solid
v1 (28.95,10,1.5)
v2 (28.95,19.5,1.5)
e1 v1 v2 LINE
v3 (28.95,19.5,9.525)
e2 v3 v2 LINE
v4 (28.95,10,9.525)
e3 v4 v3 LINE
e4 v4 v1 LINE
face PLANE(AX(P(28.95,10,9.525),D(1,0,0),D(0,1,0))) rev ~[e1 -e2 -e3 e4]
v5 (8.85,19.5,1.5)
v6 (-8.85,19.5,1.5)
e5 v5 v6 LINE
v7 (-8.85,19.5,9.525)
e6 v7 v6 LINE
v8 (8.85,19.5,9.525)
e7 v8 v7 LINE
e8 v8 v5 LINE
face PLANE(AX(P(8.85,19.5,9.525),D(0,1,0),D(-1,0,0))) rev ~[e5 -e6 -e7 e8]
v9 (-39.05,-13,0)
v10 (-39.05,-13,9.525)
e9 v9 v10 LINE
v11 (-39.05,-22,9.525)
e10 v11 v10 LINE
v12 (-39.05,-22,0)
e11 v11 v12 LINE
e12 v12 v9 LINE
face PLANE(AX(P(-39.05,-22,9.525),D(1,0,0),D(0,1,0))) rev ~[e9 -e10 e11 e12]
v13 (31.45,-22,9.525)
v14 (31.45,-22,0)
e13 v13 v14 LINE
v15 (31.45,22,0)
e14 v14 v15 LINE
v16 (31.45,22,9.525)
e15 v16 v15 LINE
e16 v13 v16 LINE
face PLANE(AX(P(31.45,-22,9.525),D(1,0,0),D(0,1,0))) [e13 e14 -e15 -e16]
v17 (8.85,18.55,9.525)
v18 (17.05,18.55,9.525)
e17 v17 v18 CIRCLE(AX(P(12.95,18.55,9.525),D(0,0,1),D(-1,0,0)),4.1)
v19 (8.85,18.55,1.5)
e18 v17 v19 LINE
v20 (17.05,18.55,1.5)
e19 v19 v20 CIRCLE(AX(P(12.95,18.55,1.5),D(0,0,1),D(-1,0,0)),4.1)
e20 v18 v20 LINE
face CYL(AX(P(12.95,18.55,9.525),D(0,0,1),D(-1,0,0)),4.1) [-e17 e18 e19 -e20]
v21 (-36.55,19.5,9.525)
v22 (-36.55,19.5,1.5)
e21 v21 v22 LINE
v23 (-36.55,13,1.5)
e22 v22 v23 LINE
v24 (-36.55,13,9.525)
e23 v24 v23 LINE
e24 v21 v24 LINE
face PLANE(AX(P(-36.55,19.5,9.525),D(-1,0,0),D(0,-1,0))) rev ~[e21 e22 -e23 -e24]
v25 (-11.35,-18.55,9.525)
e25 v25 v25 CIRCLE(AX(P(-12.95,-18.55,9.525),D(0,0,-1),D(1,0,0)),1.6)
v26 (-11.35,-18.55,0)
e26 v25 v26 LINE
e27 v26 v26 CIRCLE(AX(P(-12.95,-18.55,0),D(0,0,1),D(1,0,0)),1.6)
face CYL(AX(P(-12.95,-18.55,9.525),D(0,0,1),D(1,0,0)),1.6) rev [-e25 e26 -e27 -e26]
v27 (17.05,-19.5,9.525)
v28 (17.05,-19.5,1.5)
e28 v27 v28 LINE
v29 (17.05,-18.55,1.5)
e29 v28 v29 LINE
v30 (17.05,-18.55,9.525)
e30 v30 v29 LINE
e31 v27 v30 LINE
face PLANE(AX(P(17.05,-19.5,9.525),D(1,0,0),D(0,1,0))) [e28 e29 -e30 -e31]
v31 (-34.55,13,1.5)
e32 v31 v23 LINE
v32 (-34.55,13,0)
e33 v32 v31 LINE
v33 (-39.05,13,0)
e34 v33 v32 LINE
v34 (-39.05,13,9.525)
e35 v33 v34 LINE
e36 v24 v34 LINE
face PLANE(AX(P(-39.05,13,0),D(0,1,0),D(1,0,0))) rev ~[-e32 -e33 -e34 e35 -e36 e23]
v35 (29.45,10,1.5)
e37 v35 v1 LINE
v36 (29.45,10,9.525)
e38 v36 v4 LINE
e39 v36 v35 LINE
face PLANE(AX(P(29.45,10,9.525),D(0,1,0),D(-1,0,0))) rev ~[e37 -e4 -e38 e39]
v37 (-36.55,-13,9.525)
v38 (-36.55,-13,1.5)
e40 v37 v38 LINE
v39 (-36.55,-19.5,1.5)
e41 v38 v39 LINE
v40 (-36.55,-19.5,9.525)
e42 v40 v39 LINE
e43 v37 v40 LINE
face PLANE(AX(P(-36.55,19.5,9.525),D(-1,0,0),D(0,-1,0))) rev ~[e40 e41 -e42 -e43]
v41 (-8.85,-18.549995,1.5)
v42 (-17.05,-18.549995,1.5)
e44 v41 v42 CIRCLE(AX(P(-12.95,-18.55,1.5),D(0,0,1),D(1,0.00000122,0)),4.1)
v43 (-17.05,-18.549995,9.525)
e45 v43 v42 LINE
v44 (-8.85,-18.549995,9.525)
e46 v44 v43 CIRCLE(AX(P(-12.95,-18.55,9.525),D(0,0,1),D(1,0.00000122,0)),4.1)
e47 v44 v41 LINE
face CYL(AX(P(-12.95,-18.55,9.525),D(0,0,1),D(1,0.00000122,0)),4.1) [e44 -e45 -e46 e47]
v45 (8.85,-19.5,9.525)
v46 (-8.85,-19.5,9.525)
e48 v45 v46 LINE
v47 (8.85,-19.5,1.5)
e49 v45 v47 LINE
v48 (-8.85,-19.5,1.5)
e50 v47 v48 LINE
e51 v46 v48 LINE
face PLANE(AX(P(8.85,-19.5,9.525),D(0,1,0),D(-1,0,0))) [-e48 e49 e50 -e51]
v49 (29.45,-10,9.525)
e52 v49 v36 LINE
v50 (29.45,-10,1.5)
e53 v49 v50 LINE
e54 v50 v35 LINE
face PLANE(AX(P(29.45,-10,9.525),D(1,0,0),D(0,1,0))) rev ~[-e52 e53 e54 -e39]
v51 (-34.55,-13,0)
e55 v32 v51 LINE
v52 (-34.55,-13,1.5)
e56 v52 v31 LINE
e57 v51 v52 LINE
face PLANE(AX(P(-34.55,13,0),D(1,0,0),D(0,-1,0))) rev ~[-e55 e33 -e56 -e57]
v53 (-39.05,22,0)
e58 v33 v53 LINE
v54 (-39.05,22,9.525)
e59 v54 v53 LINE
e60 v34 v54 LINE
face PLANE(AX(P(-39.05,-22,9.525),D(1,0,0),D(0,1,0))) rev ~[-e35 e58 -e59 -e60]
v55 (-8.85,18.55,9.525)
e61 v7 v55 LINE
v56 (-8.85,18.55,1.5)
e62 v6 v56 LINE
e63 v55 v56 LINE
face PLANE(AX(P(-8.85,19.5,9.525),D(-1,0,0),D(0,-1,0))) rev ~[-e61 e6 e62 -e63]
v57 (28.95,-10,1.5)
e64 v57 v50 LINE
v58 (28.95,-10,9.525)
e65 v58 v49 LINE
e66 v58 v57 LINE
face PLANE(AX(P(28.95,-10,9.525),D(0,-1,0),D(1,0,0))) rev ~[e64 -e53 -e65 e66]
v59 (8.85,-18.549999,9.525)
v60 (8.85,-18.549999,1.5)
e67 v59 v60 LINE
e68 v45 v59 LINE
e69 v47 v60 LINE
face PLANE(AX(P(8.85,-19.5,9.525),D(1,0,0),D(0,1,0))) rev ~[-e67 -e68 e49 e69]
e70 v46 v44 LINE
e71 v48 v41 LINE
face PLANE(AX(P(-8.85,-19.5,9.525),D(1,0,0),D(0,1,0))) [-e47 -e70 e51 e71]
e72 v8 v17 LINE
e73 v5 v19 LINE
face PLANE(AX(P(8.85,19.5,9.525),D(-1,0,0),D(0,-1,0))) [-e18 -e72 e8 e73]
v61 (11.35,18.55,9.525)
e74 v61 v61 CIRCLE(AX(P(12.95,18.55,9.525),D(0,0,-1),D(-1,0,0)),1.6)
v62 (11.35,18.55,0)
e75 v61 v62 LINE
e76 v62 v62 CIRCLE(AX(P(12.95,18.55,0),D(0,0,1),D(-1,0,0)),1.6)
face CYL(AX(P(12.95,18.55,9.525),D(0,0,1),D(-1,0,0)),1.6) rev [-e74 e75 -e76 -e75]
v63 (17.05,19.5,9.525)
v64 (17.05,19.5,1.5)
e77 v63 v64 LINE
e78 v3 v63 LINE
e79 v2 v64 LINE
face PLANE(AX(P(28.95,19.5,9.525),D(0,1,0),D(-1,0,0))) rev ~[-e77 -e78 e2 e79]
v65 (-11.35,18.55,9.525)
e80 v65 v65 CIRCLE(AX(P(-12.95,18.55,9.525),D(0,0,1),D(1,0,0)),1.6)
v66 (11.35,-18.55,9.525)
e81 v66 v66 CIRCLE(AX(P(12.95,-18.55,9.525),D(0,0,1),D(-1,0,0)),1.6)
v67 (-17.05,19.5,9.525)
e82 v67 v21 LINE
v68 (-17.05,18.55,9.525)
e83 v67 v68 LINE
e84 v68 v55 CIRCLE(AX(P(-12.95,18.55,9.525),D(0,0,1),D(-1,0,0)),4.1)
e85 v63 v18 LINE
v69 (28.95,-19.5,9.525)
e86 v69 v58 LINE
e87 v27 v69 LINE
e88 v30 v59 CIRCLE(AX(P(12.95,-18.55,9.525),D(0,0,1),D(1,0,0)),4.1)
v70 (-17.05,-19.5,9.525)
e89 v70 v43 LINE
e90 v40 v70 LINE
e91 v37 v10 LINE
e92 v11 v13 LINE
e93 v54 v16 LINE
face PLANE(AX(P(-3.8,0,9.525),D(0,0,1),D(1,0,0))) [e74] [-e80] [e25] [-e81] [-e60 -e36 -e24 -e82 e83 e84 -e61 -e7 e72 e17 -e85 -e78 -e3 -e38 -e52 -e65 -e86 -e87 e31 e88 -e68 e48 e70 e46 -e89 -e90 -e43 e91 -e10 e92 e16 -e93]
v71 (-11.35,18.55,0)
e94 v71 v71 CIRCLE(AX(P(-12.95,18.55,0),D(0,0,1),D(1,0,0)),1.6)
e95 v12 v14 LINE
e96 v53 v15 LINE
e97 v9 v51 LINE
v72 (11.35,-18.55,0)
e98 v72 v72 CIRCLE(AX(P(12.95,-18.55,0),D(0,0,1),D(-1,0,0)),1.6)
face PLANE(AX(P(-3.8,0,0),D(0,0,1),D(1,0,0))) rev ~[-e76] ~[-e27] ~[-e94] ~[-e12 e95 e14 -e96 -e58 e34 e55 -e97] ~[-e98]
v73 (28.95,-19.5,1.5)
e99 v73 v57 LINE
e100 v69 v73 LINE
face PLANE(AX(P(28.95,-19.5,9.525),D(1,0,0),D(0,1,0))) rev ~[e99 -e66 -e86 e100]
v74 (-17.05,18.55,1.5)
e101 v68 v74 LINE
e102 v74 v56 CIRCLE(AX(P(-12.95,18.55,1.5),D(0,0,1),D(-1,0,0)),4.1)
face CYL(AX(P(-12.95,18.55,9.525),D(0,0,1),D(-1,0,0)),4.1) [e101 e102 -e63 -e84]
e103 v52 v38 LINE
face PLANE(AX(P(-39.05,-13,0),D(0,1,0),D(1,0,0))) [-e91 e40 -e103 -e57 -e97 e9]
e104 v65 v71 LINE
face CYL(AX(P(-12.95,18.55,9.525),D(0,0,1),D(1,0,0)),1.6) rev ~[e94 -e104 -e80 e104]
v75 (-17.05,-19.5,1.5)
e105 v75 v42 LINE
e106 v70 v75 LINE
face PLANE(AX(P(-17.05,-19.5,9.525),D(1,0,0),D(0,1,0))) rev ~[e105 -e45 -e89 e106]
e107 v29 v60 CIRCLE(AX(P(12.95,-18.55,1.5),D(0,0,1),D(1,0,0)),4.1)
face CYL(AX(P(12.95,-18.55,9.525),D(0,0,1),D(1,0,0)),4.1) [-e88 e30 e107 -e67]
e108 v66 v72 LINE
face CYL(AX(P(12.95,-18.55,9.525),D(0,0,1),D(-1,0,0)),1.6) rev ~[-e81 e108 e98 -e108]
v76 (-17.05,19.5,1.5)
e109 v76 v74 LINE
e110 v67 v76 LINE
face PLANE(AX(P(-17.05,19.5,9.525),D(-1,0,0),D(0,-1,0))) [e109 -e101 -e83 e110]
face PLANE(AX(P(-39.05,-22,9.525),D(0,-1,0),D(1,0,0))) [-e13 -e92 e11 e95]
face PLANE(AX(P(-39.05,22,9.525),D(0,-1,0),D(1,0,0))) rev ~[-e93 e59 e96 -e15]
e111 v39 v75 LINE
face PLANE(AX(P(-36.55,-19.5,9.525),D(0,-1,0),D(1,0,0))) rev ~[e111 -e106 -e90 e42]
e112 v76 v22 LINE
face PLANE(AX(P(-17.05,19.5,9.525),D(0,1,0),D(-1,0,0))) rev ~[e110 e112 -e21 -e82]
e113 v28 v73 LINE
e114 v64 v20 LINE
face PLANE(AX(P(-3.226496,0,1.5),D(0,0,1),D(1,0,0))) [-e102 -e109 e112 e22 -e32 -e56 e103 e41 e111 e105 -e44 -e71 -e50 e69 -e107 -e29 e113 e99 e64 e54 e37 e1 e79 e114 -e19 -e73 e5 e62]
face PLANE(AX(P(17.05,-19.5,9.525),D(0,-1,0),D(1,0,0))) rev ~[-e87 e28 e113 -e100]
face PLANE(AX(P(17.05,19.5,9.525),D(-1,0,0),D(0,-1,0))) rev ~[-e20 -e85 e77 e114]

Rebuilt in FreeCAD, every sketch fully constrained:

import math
import FreeCAD as App
import Part
import Sketcher
from FreeCAD import Vector
Q = App.Units.Quantity

doc = App.newDocument("Part")
body = doc.addObject("PartDesign::Body", "Body")

sketch1 = body.newObject("Sketcher::SketchObject", "Sketch")
sketch1.AttachmentSupport = (doc.getObject("XY_Plane"), [""])
sketch1.MapMode = "FlatFace"
sketch1.addGeometry([
    Part.LineSegment(Vector(-39, 22, 0), Vector(-39, -22, 0)),
    Part.LineSegment(Vector(-39, -22, 0), Vector(31, -22, 0)),
    Part.LineSegment(Vector(31, -22, 0), Vector(31, 22, 0)),
    Part.LineSegment(Vector(31, 22, 0), Vector(-39, 22, 0)),
], False)
sketch1.addConstraint([
    Sketcher.Constraint("Coincident", 0, 2, 1, 1),
    Sketcher.Constraint("Coincident", 1, 2, 2, 1),
    Sketcher.Constraint("Coincident", 2, 2, 3, 1),
    Sketcher.Constraint("Coincident", 3, 2, 0, 1),
    Sketcher.Constraint("Vertical", 0),
    Sketcher.Constraint("Horizontal", 1),
    Sketcher.Constraint("Vertical", 2),
    Sketcher.Constraint("Horizontal", 3),
    Sketcher.Constraint("DistanceY", 0, 2, 0, 1, Q("44 mm")),
    Sketcher.Constraint("DistanceX", 1, 1, 1, 2, Q("70.5 mm")),
    Sketcher.Constraint("DistanceY", 0, 2, -1, 1, Q("22 mm")),
    Sketcher.Constraint("DistanceX", 0, 2, -1, 1, Q("39.05 mm")),
])
pad1 = body.newObject("PartDesign::Pad", "Pad")
pad1.Profile = sketch1
pad1.Length = 9.525
pad1.Reversed = True

sketch2 = body.newObject("Sketcher::SketchObject", "Sketch001")
sketch2.AttachmentSupport = (doc.getObject("XY_Plane"), [""])
sketch2.MapMode = "FlatFace"
sketch2.addGeometry(Part.Circle(Vector(-12.9, 18.6, 0), Vector(0, 0, 1), 1.6), False)
sketch2.addConstraint([
    Sketcher.Constraint("Diameter", 0, Q("3.2 mm")),
    Sketcher.Constraint("DistanceX", 0, 3, -1, 1, Q("12.95 mm")),
    Sketcher.Constraint("DistanceY", -1, 1, 0, 3, Q("18.55 mm")),
])
pocket1 = body.newObject("PartDesign::Pocket", "Pocket")
pocket1.Profile = sketch2
pocket1.Type = "ThroughAll"

sketch3 = body.newObject("Sketcher::SketchObject", "Sketch002")
sketch3.AttachmentSupport = (doc.getObject("XY_Plane"), [""])
sketch3.MapMode = "FlatFace"
sketch3.addGeometry(Part.Circle(Vector(12.9, 18.6, 0), Vector(0, 0, 1), 1.6), False)
sketch3.addConstraint([
    Sketcher.Constraint("Diameter", 0, Q("3.2 mm")),
    Sketcher.Constraint("DistanceX", -1, 1, 0, 3, Q("12.95 mm")),
    Sketcher.Constraint("DistanceY", -1, 1, 0, 3, Q("18.55 mm")),
])
pocket2 = body.newObject("PartDesign::Pocket", "Pocket001")
pocket2.Profile = sketch3
pocket2.Type = "ThroughAll"
doc.recompute()

mirrored = body.newObject("PartDesign::Mirrored", "Mirrored")
mirrored.Originals = [pocket1, pocket2]
mirrored.MirrorPlane = (doc.getObject("XZ_Plane"), [""])
body.Tip = mirrored

sketch4 = body.newObject("Sketcher::SketchObject", "Sketch003")
sketch4.AttachmentSupport = (doc.getObject("XY_Plane"), [""])
sketch4.MapMode = "FlatFace"
sketch4.addGeometry([
    Part.LineSegment(Vector(29.4, -10, 0), Vector(29.4, 10, 0)),
    Part.LineSegment(Vector(29.4, 10, 0), Vector(28.9, 10, 0)),
    Part.LineSegment(Vector(28.9, 10, 0), Vector(28.9, 19.5, 0)),
    Part.LineSegment(Vector(28.9, 19.5, 0), Vector(17.1, 19.5, 0)),
    Part.LineSegment(Vector(17.1, 19.5, 0), Vector(17.1, 18.6, 0)),
    Part.ArcOfCircle(Part.Circle(Vector(12.9, 18.6, 0), Vector(0, 0, 1), 4.1), math.radians(180), math.radians(360)),
    Part.LineSegment(Vector(8.8, 18.6, 0), Vector(8.8, 19.5, 0)),
    Part.LineSegment(Vector(8.8, 19.5, 0), Vector(-8.8, 19.5, 0)),
    Part.LineSegment(Vector(-8.8, 19.5, 0), Vector(-8.8, 18.6, 0)),
    Part.ArcOfCircle(Part.Circle(Vector(-12.9, 18.6, 0), Vector(0, 0, 1), 4.1), math.radians(180), math.radians(360)),
    Part.LineSegment(Vector(-17.1, 18.6, 0), Vector(-17.1, 19.5, 0)),
    Part.LineSegment(Vector(-17.1, 19.5, 0), Vector(-36.5, 19.5, 0)),
    Part.LineSegment(Vector(-36.5, 19.5, 0), Vector(-36.5, -19.5, 0)),
    Part.LineSegment(Vector(-36.5, -19.5, 0), Vector(-17.1, -19.5, 0)),
    Part.LineSegment(Vector(-17.1, -19.5, 0), Vector(-17.1, -18.5, 0)),
    Part.ArcOfCircle(Part.Circle(Vector(-12.9, -18.6, 0), Vector(0, 0, 1), 4.1), math.radians(0), math.radians(180)),
    Part.LineSegment(Vector(-8.8, -18.5, 0), Vector(-8.8, -19.5, 0)),
    Part.LineSegment(Vector(-8.8, -19.5, 0), Vector(8.8, -19.5, 0)),
    Part.LineSegment(Vector(8.8, -19.5, 0), Vector(8.8, -18.5, 0)),
    Part.ArcOfCircle(Part.Circle(Vector(12.9, -18.6, 0), Vector(0, 0, 1), 4.1), math.radians(0), math.radians(180)),
    Part.LineSegment(Vector(17.1, -18.6, 0), Vector(17.1, -19.5, 0)),
    Part.LineSegment(Vector(17.1, -19.5, 0), Vector(28.9, -19.5, 0)),
    Part.LineSegment(Vector(28.9, -19.5, 0), Vector(28.9, -10, 0)),
    Part.LineSegment(Vector(28.9, -10, 0), Vector(29.4, -10, 0)),
], False)
sketch4.addConstraint([
    Sketcher.Constraint("Coincident", 0, 2, 1, 1),
    Sketcher.Constraint("Coincident", 1, 2, 2, 1),
    Sketcher.Constraint("Coincident", 2, 2, 3, 1),
    Sketcher.Constraint("Coincident", 3, 2, 4, 1),
    Sketcher.Constraint("Tangent", 4, 2, 5, 2),
    Sketcher.Constraint("Tangent", 5, 1, 6, 1),
    Sketcher.Constraint("Coincident", 6, 2, 7, 1),
    Sketcher.Constraint("Coincident", 7, 2, 8, 1),
    Sketcher.Constraint("Tangent", 8, 2, 9, 2),
    Sketcher.Constraint("Tangent", 9, 1, 10, 1),
    Sketcher.Constraint("Coincident", 10, 2, 11, 1),
    Sketcher.Constraint("Coincident", 11, 2, 12, 1),
    Sketcher.Constraint("Coincident", 12, 2, 13, 1),
    Sketcher.Constraint("Coincident", 13, 2, 14, 1),
    Sketcher.Constraint("Tangent", 14, 2, 15, 2),
    Sketcher.Constraint("Tangent", 15, 1, 16, 1),
    Sketcher.Constraint("Coincident", 16, 2, 17, 1),
    Sketcher.Constraint("Coincident", 17, 2, 18, 1),
    Sketcher.Constraint("Tangent", 18, 2, 19, 2),
    Sketcher.Constraint("Tangent", 19, 1, 20, 1),
    Sketcher.Constraint("Coincident", 20, 2, 21, 1),
    Sketcher.Constraint("Coincident", 21, 2, 22, 1),
    Sketcher.Constraint("Coincident", 22, 2, 23, 1),
    Sketcher.Constraint("Coincident", 23, 2, 0, 1),
    Sketcher.Constraint("Vertical", 0),
    Sketcher.Constraint("Horizontal", 1),
    Sketcher.Constraint("Vertical", 2),
    Sketcher.Constraint("Horizontal", 3),
    Sketcher.Constraint("Vertical", 4),
    Sketcher.Constraint("Vertical", 6),
    Sketcher.Constraint("Horizontal", 7),
    Sketcher.Constraint("Vertical", 8),
    Sketcher.Constraint("Vertical", 10),
    Sketcher.Constraint("Horizontal", 11),
    Sketcher.Constraint("Vertical", 12),
    Sketcher.Constraint("Horizontal", 13),
    Sketcher.Constraint("Vertical", 14),
    Sketcher.Constraint("Vertical", 16),
    Sketcher.Constraint("Horizontal", 17),
    Sketcher.Constraint("Vertical", 18),
    Sketcher.Constraint("Vertical", 20),
    Sketcher.Constraint("Horizontal", 21),
    Sketcher.Constraint("Vertical", 22),
    Sketcher.Constraint("Horizontal", 23),
    Sketcher.Constraint("Equal", 5, 9),
    Sketcher.Constraint("Equal", 9, 15),
    Sketcher.Constraint("Equal", 15, 19),
    Sketcher.Constraint("Symmetric", 5, 3, 15, 3, -1, 1),
    Sketcher.Constraint("Symmetric", 9, 3, 19, 3, -1, 1),
    Sketcher.Constraint("Symmetric", 5, 3, 9, 3, -2),
    Sketcher.Constraint("Symmetric", 2, 2, 21, 2, -1),
    Sketcher.Constraint("Horizontal", 3, 2, 6, 2),
    Sketcher.Constraint("Horizontal", 7, 2, 10, 2),
    Sketcher.Constraint("Horizontal", 13, 2, 16, 2),
    Sketcher.Constraint("Horizontal", 17, 2, 20, 2),
    Sketcher.Constraint("Equal", 2, 22),
    Sketcher.Constraint("Radius", 5, Q("4.1 mm")),
    Sketcher.Constraint("DistanceY", 0, 1, 0, 2, Q("20 mm")),
    Sketcher.Constraint("DistanceY", 12, 2, 12, 1, Q("39 mm")),
    Sketcher.Constraint("DistanceX", 1, 2, 1, 1, Q("0.5 mm")),
    Sketcher.Constraint("DistanceX", 3, 2, 3, 1, Q("11.9 mm")),
    Sketcher.Constraint("DistanceX", 7, 2, 7, 1, Q("17.7 mm")),
    Sketcher.Constraint("DistanceX", 11, 2, 11, 1, Q("19.5 mm")),
    Sketcher.Constraint("DistanceY", 4, 2, 4, 1, Q("0.95 mm")),
])
pocket3 = body.newObject("PartDesign::Pocket", "Pocket002")
pocket3.Profile = sketch4
pocket3.Length = 8.025

sketch5 = body.newObject("Sketcher::SketchObject", "Sketch004")
sketch5.AttachmentSupport = (doc.getObject("XY_Plane"), [""])
sketch5.MapMode = "FlatFace"
sketch5.AttachmentOffset = App.Placement(Vector(0, 0, -9.525), App.Rotation())
sketch5.addGeometry([
    Part.LineSegment(Vector(-39, -13, 0), Vector(-39, 13, 0)),
    Part.LineSegment(Vector(-39, 13, 0), Vector(-34.5, 13, 0)),
    Part.LineSegment(Vector(-34.5, 13, 0), Vector(-34.5, -13, 0)),
    Part.LineSegment(Vector(-34.5, -13, 0), Vector(-39, -13, 0)),
], False)
sketch5.addConstraint([
    Sketcher.Constraint("Coincident", 0, 2, 1, 1),
    Sketcher.Constraint("Coincident", 1, 2, 2, 1),
    Sketcher.Constraint("Coincident", 2, 2, 3, 1),
    Sketcher.Constraint("Coincident", 3, 2, 0, 1),
    Sketcher.Constraint("Vertical", 0),
    Sketcher.Constraint("Horizontal", 1),
    Sketcher.Constraint("Vertical", 2),
    Sketcher.Constraint("Horizontal", 3),
    Sketcher.Constraint("DistanceY", 0, 1, 0, 2, Q("26 mm")),
    Sketcher.Constraint("DistanceX", 1, 1, 1, 2, Q("4.5 mm")),
    Sketcher.Constraint("DistanceY", -1, 1, 0, 2, Q("13 mm")),
    Sketcher.Constraint("DistanceX", 0, 2, -1, 1, Q("39.05 mm")),
])
pocket4 = body.newObject("PartDesign::Pocket", "Pocket003")
pocket4.Profile = sketch5
pocket4.Type = "ThroughAll"
pocket4.Reversed = True
body2 = doc.addObject("PartDesign::Body", "Body001")
doc.recompute()

body.Placement = App.Placement(Vector(0, 0, 9.525), App.Rotation(Vector(0, 0, 1), 0))
boolean = body2.newObject("PartDesign::Boolean", "Boolean")
boolean.Type = "Fuse"
boolean.addObjects([body])

doc.recompute()
